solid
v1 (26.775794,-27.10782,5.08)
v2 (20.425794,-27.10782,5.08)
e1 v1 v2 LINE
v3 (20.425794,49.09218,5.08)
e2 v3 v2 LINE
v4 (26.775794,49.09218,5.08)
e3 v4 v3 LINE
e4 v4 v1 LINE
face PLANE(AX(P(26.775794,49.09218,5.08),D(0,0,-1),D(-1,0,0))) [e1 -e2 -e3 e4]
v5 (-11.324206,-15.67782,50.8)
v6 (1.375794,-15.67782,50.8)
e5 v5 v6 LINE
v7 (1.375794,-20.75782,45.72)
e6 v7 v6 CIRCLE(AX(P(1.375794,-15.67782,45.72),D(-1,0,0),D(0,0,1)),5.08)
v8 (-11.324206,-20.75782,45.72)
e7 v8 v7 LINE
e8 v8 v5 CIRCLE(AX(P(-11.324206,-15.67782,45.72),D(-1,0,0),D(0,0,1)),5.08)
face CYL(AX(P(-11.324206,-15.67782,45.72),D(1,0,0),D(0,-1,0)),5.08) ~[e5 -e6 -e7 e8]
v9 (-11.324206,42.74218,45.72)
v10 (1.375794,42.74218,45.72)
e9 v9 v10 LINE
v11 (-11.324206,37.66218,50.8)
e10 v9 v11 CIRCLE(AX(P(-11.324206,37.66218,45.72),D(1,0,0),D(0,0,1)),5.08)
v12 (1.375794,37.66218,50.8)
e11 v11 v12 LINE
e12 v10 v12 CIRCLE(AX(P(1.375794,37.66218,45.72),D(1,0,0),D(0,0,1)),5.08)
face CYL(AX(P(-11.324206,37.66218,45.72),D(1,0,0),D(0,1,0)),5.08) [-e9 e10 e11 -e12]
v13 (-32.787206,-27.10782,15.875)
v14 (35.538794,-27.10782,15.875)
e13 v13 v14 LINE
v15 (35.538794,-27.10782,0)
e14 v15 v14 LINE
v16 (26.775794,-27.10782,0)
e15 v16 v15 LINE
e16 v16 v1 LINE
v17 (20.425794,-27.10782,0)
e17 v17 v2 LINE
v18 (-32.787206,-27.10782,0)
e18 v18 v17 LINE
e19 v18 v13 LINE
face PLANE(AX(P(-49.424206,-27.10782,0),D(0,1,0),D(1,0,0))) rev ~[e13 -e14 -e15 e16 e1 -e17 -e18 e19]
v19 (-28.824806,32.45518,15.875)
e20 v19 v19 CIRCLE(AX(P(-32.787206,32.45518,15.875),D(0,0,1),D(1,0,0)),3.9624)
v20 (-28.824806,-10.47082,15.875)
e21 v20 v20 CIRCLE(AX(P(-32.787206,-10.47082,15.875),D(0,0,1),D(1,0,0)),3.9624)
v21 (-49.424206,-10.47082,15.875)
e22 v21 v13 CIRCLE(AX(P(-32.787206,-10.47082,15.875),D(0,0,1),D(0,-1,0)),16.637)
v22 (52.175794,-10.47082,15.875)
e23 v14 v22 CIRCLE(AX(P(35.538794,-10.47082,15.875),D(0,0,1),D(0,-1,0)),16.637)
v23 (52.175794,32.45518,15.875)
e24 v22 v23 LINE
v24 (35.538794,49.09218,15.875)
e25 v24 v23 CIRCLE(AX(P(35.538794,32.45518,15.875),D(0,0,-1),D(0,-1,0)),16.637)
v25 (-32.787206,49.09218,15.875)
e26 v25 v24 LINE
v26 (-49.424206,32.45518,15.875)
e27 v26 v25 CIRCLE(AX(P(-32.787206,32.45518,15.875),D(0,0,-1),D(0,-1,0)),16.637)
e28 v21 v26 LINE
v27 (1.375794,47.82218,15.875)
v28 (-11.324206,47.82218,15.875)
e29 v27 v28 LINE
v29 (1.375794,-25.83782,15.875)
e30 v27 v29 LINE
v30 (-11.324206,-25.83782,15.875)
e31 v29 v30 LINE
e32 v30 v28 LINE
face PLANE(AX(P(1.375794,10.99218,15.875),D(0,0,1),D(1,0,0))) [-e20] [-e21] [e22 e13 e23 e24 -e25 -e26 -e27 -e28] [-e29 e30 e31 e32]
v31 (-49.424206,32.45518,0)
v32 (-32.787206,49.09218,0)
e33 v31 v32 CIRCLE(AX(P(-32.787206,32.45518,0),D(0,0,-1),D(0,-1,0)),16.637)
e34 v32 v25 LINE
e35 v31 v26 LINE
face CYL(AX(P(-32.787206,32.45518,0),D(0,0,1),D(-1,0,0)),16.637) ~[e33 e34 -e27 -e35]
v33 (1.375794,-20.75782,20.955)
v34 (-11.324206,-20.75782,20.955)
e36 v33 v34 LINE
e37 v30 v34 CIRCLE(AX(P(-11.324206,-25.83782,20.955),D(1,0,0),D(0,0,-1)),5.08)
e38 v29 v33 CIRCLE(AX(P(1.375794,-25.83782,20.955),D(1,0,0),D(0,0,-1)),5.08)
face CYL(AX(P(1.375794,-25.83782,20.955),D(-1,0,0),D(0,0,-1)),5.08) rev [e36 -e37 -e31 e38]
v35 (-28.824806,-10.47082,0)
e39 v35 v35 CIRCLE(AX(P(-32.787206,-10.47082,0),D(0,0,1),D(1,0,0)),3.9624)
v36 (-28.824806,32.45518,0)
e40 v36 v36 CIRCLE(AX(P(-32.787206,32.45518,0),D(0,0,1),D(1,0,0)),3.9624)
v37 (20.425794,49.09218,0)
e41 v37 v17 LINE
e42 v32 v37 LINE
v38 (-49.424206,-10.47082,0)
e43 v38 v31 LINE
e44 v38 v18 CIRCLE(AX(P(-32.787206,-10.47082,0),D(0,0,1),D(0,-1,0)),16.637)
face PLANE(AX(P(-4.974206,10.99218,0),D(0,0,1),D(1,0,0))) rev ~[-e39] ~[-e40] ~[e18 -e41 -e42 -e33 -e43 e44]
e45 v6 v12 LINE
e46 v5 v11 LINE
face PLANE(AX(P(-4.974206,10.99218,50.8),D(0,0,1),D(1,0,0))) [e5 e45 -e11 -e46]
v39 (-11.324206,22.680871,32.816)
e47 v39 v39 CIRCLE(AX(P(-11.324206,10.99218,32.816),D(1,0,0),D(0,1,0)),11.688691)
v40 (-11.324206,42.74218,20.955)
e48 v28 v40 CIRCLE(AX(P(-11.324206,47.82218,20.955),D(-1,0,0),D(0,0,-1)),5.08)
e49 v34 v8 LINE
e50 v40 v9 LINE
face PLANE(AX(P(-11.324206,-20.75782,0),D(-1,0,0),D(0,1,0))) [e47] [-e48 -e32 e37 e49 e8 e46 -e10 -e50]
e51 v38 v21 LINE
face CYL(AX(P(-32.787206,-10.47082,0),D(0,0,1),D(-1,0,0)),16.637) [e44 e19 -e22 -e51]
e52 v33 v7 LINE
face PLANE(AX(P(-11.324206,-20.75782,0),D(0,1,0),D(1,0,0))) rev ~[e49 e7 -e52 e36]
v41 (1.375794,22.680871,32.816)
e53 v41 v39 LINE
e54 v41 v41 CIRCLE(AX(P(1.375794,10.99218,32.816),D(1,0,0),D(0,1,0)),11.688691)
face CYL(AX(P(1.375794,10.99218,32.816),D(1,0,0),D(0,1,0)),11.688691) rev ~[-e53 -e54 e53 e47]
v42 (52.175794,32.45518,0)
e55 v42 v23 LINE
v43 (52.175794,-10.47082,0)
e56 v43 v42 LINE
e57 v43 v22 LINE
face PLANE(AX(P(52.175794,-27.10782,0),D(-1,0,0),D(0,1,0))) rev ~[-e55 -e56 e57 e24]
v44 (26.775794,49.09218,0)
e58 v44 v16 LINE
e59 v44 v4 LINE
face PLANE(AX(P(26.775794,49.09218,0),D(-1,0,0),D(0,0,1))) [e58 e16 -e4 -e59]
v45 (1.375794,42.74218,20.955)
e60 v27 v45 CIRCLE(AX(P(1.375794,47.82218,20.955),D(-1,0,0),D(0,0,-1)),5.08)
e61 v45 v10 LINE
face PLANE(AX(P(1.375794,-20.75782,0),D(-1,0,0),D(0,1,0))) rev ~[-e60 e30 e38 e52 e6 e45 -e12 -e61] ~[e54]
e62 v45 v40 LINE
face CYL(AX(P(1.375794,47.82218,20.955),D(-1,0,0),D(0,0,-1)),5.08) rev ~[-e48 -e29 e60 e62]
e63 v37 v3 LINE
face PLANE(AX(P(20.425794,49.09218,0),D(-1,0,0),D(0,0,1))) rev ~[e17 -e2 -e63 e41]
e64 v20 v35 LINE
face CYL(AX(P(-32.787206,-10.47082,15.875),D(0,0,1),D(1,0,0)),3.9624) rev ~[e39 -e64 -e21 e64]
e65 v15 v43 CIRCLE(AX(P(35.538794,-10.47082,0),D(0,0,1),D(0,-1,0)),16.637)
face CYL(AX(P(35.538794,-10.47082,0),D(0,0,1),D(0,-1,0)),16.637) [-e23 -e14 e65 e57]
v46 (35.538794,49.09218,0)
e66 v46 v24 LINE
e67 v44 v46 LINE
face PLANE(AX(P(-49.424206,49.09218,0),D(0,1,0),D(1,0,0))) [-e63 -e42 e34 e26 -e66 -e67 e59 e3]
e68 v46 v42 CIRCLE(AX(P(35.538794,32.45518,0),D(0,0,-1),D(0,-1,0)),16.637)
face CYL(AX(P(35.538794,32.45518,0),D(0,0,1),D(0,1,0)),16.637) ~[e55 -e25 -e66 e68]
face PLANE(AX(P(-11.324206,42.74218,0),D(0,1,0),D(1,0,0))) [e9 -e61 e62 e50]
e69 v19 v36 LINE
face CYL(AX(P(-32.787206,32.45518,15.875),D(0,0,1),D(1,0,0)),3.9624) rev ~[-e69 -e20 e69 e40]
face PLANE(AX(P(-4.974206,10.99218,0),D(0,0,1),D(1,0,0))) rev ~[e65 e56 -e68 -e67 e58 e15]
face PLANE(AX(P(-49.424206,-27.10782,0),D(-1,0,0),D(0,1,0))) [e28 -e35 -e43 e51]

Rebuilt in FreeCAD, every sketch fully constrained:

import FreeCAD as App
import Part
import Sketcher

V = App.Vector
Q = App.Units.Quantity


def edges_at(feature, points):
    """Names of the edges that pass closest to the given points."""
    edges = feature.Shape.Edges
    near = lambda p: min(range(len(edges)), key=lambda i: edges[i].distToShape(Part.Vertex(*p))[0])
    return sorted({f"Edge{near(p) + 1}" for p in points})


def add_polygon(sketch, points):
    """Adds a closed chain of lines whose ends are joined by coincident constraints."""
    first, n = sketch.GeometryCount, len(points)
    for a, b in zip(points, points[1:] + points[:1]):
        sketch.addGeometry(Part.LineSegment(App.Vector(*a, 0), App.Vector(*b, 0)), False)
    for i in range(n):
        sketch.addConstraint(Sketcher.Constraint("Coincident", first + i, 2, first + (i + 1) % n, 1))

doc = App.newDocument("Part")
params = doc.addObject("Spreadsheet::Sheet", "Params")
for row, (alias, value) in enumerate([
    ("sketch1_width", "4 in"),
    ("sketch1_height", "3 in"),
    ("pad1_length", "0.625 in"),
    ("sketch2_diameter", "0.312 in"),
    ("pocket1_length", "0.625 in"),
    ("fillet_radius", "0.655 in"),
    ("sketch3_width", "0.5 in"),
    ("sketch3_height", "2.5 in"),
    ("pad2_length", "2 in"),
    ("fillet2_radius", "0.2 in"),
    ("pocket2_length", "1 in"),
    ("sketch5_height", "0.2 in"),
    ("sketch5_width", "0.25 in"),
    ("pocket3_length", "4 in"),
], start=1):
    params.set(f"A{row}", alias)
    params.set(f"B{row}", "=" + value)
    params.setAlias(f"B{row}", alias)

body = doc.addObject("PartDesign::Body", "Body")

# Sketch on XY plane
sketch1 = body.newObject("Sketcher::SketchObject", "Sketch")
sketch1.AttachmentSupport = (doc.getObject("XY_Plane"), [""])
sketch1.MapMode = "FlatFace"
add_polygon(sketch1, [(-49, 49), (-49, -27), (52, -27), (52, 49)])  # lines 0-3
sketch1.addConstraint(Sketcher.Constraint("Vertical", 0))
sketch1.addConstraint(Sketcher.Constraint("Horizontal", 1))
sketch1.addConstraint(Sketcher.Constraint("Vertical", 2))
sketch1.addConstraint(Sketcher.Constraint("Horizontal", 3))
sketch1.addConstraint(Sketcher.Constraint("DistanceX", 1, 1, 1, 2, Q("4 in")))
sketch1.addConstraint(Sketcher.Constraint("DistanceY", 0, 2, 0, 1, Q("3 in")))
sketch1.addConstraint(Sketcher.Constraint("DistanceY", 0, 2, -1, 1, 27.10782))
sketch1.addConstraint(Sketcher.Constraint("DistanceX", 0, 2, -1, 1, 49.424206))
sketch1.setExpression("Constraints[8]", "Params.sketch1_width")
sketch1.setExpression("Constraints[9]", "Params.sketch1_height")
pad1 = body.newObject("PartDesign::Pad", "Pad")
pad1.Profile = sketch1
pad1.setExpression("Length", "Params.pad1_length")

# Sketch on XY plane
sketch2 = body.newObject("Sketcher::SketchObject", "Sketch001")
sketch2.AttachmentSupport = (doc.getObject("XY_Plane"), [""])
sketch2.MapMode = "FlatFace"
sketch2.AttachmentOffset = App.Placement(V(0, 0, 0.625 * 25.4), App.Rotation())
sketch2.addGeometry(Part.Circle(V(-32.8, 32.5, 0), V(0, 0, 1), 4), False)
sketch2.addGeometry(Part.Circle(V(-32.8, -10.5, 0), V(0, 0, 1), 4), False)
sketch2.addConstraint(Sketcher.Constraint("Equal", 0, 1))
sketch2.addConstraint(Sketcher.Constraint("Vertical", 0, 3, 1, 3))
sketch2.addConstraint(Sketcher.Constraint("Diameter", 0, Q("0.312 in")))
sketch2.addConstraint(Sketcher.Constraint("DistanceY", 1, 3, 0, 3, Q("1.69 in")))
sketch2.addConstraint(Sketcher.Constraint("DistanceY", -1, 1, 0, 3, 32.45518))
sketch2.addConstraint(Sketcher.Constraint("DistanceX", 0, 3, -1, 1, 32.787206))
sketch2.setExpression("Constraints[2]", "Params.sketch2_diameter")
pocket1 = body.newObject("PartDesign::Pocket", "Pocket")
pocket1.Profile = sketch2
pocket1.setExpression("Length", "Params.pocket1_length")
doc.recompute()

fillet = body.newObject("PartDesign::Fillet", "Fillet")
fillet.Base = (pocket1, edges_at(pocket1, [
    (-49.424, 49.092, 7.938),
    (52.176, 49.092, 7.938),
    (52.176, -27.108, 7.938),
    (-49.424, -27.108, 7.938),
]))
fillet.setExpression("Radius", "Params.fillet_radius")

# Sketch on XY plane
sketch3 = body.newObject("Sketcher::SketchObject", "Sketch002")
sketch3.AttachmentSupport = (doc.getObject("XY_Plane"), [""])
sketch3.MapMode = "FlatFace"
add_polygon(sketch3, [(-11, 43), (-11, -21), (1, -21), (1, 43)])  # lines 0-3
sketch3.addConstraint(Sketcher.Constraint("Vertical", 0))
sketch3.addConstraint(Sketcher.Constraint("Horizontal", 1))
sketch3.addConstraint(Sketcher.Constraint("Vertical", 2))
sketch3.addConstraint(Sketcher.Constraint("Horizontal", 3))
sketch3.addConstraint(Sketcher.Constraint("DistanceX", 1, 1, 1, 2, Q("0.5 in")))
sketch3.addConstraint(Sketcher.Constraint("DistanceY", 0, 2, 0, 1, Q("2.5 in")))
sketch3.addConstraint(Sketcher.Constraint("DistanceY", 0, 2, -1, 1, 20.75782))
sketch3.addConstraint(Sketcher.Constraint("DistanceX", 0, 2, -1, 1, 11.324206))
sketch3.setExpression("Constraints[8]", "Params.sketch3_width")
sketch3.setExpression("Constraints[9]", "Params.sketch3_height")
pad2 = body.newObject("PartDesign::Pad", "Pad001")
pad2.Profile = sketch3
pad2.setExpression("Length", "Params.pad2_length")
doc.recompute()

fillet2 = body.newObject("PartDesign::Fillet", "Fillet001")
fillet2.Base = (pad2, edges_at(pad2, [
    (-4.974, 42.742, 50.8),
    (-4.974, -20.758, 50.8),
    (-4.974, -20.758, 15.875),
    (-4.974, 42.742, 15.875),
]))
fillet2.setExpression("Radius", "Params.fillet2_radius")

# Sketch on YZ plane
sketch4 = body.newObject("Sketcher::SketchObject", "Sketch003")
sketch4.AttachmentSupport = (doc.getObject("YZ_Plane"), [""])
sketch4.MapMode = "FlatFace"
sketch4.AttachmentOffset = App.Placement(V(0, 0, 1.375794), App.Rotation())
sketch4.addGeometry(Part.Circle(V(11, 33, 0), V(0, 0, 1), 12), False)
sketch4.addConstraint(Sketcher.Constraint("Diameter", 0, 23.377382))
sketch4.addConstraint(Sketcher.Constraint("DistanceY", -1, 1, 0, 3, 32.816))
sketch4.addConstraint(Sketcher.Constraint("DistanceX", -1, 1, 0, 3, 10.99218))
pocket2 = body.newObject("PartDesign::Pocket", "Pocket001")
pocket2.Profile = sketch4
pocket2.setExpression("Length", "Params.pocket2_length")

# Sketch on XZ plane
sketch5 = body.newObject("Sketcher::SketchObject", "Sketch004")
sketch5.AttachmentSupport = (doc.getObject("XZ_Plane"), [""])
sketch5.MapMode = "FlatFace"
sketch5.AttachmentOffset = App.Placement(V(0, 0, -49.09218), App.Rotation())
add_polygon(sketch5, [(27, 5), (27, 0), (20, 0), (20, 5)])  # lines 0-3
sketch5.addConstraint(Sketcher.Constraint("Vertical", 0))
sketch5.addConstraint(Sketcher.Constraint("Horizontal", 1))
sketch5.addConstraint(Sketcher.Constraint("Vertical", 2))
sketch5.addConstraint(Sketcher.Constraint("Horizontal", 3))
sketch5.addConstraint(Sketcher.Constraint("PointOnObject", 0, 2, -1))
sketch5.addConstraint(Sketcher.Constraint("DistanceY", 0, 2, 0, 1, Q("0.2 in")))
sketch5.addConstraint(Sketcher.Constraint("DistanceX", 1, 2, 1, 1, Q("0.25 in")))
sketch5.addConstraint(Sketcher.Constraint("DistanceX", -1, 1, 0, 2, 26.775794))
sketch5.setExpression("Constraints[9]", "Params.sketch5_height")
sketch5.setExpression("Constraints[10]", "Params.sketch5_width")
pocket3 = body.newObject("PartDesign::Pocket", "Pocket002")
pocket3.Profile = sketch5
pocket3.setExpression("Length", "Params.pocket3_length")
pocket3.Reversed = True

doc.recompute()
